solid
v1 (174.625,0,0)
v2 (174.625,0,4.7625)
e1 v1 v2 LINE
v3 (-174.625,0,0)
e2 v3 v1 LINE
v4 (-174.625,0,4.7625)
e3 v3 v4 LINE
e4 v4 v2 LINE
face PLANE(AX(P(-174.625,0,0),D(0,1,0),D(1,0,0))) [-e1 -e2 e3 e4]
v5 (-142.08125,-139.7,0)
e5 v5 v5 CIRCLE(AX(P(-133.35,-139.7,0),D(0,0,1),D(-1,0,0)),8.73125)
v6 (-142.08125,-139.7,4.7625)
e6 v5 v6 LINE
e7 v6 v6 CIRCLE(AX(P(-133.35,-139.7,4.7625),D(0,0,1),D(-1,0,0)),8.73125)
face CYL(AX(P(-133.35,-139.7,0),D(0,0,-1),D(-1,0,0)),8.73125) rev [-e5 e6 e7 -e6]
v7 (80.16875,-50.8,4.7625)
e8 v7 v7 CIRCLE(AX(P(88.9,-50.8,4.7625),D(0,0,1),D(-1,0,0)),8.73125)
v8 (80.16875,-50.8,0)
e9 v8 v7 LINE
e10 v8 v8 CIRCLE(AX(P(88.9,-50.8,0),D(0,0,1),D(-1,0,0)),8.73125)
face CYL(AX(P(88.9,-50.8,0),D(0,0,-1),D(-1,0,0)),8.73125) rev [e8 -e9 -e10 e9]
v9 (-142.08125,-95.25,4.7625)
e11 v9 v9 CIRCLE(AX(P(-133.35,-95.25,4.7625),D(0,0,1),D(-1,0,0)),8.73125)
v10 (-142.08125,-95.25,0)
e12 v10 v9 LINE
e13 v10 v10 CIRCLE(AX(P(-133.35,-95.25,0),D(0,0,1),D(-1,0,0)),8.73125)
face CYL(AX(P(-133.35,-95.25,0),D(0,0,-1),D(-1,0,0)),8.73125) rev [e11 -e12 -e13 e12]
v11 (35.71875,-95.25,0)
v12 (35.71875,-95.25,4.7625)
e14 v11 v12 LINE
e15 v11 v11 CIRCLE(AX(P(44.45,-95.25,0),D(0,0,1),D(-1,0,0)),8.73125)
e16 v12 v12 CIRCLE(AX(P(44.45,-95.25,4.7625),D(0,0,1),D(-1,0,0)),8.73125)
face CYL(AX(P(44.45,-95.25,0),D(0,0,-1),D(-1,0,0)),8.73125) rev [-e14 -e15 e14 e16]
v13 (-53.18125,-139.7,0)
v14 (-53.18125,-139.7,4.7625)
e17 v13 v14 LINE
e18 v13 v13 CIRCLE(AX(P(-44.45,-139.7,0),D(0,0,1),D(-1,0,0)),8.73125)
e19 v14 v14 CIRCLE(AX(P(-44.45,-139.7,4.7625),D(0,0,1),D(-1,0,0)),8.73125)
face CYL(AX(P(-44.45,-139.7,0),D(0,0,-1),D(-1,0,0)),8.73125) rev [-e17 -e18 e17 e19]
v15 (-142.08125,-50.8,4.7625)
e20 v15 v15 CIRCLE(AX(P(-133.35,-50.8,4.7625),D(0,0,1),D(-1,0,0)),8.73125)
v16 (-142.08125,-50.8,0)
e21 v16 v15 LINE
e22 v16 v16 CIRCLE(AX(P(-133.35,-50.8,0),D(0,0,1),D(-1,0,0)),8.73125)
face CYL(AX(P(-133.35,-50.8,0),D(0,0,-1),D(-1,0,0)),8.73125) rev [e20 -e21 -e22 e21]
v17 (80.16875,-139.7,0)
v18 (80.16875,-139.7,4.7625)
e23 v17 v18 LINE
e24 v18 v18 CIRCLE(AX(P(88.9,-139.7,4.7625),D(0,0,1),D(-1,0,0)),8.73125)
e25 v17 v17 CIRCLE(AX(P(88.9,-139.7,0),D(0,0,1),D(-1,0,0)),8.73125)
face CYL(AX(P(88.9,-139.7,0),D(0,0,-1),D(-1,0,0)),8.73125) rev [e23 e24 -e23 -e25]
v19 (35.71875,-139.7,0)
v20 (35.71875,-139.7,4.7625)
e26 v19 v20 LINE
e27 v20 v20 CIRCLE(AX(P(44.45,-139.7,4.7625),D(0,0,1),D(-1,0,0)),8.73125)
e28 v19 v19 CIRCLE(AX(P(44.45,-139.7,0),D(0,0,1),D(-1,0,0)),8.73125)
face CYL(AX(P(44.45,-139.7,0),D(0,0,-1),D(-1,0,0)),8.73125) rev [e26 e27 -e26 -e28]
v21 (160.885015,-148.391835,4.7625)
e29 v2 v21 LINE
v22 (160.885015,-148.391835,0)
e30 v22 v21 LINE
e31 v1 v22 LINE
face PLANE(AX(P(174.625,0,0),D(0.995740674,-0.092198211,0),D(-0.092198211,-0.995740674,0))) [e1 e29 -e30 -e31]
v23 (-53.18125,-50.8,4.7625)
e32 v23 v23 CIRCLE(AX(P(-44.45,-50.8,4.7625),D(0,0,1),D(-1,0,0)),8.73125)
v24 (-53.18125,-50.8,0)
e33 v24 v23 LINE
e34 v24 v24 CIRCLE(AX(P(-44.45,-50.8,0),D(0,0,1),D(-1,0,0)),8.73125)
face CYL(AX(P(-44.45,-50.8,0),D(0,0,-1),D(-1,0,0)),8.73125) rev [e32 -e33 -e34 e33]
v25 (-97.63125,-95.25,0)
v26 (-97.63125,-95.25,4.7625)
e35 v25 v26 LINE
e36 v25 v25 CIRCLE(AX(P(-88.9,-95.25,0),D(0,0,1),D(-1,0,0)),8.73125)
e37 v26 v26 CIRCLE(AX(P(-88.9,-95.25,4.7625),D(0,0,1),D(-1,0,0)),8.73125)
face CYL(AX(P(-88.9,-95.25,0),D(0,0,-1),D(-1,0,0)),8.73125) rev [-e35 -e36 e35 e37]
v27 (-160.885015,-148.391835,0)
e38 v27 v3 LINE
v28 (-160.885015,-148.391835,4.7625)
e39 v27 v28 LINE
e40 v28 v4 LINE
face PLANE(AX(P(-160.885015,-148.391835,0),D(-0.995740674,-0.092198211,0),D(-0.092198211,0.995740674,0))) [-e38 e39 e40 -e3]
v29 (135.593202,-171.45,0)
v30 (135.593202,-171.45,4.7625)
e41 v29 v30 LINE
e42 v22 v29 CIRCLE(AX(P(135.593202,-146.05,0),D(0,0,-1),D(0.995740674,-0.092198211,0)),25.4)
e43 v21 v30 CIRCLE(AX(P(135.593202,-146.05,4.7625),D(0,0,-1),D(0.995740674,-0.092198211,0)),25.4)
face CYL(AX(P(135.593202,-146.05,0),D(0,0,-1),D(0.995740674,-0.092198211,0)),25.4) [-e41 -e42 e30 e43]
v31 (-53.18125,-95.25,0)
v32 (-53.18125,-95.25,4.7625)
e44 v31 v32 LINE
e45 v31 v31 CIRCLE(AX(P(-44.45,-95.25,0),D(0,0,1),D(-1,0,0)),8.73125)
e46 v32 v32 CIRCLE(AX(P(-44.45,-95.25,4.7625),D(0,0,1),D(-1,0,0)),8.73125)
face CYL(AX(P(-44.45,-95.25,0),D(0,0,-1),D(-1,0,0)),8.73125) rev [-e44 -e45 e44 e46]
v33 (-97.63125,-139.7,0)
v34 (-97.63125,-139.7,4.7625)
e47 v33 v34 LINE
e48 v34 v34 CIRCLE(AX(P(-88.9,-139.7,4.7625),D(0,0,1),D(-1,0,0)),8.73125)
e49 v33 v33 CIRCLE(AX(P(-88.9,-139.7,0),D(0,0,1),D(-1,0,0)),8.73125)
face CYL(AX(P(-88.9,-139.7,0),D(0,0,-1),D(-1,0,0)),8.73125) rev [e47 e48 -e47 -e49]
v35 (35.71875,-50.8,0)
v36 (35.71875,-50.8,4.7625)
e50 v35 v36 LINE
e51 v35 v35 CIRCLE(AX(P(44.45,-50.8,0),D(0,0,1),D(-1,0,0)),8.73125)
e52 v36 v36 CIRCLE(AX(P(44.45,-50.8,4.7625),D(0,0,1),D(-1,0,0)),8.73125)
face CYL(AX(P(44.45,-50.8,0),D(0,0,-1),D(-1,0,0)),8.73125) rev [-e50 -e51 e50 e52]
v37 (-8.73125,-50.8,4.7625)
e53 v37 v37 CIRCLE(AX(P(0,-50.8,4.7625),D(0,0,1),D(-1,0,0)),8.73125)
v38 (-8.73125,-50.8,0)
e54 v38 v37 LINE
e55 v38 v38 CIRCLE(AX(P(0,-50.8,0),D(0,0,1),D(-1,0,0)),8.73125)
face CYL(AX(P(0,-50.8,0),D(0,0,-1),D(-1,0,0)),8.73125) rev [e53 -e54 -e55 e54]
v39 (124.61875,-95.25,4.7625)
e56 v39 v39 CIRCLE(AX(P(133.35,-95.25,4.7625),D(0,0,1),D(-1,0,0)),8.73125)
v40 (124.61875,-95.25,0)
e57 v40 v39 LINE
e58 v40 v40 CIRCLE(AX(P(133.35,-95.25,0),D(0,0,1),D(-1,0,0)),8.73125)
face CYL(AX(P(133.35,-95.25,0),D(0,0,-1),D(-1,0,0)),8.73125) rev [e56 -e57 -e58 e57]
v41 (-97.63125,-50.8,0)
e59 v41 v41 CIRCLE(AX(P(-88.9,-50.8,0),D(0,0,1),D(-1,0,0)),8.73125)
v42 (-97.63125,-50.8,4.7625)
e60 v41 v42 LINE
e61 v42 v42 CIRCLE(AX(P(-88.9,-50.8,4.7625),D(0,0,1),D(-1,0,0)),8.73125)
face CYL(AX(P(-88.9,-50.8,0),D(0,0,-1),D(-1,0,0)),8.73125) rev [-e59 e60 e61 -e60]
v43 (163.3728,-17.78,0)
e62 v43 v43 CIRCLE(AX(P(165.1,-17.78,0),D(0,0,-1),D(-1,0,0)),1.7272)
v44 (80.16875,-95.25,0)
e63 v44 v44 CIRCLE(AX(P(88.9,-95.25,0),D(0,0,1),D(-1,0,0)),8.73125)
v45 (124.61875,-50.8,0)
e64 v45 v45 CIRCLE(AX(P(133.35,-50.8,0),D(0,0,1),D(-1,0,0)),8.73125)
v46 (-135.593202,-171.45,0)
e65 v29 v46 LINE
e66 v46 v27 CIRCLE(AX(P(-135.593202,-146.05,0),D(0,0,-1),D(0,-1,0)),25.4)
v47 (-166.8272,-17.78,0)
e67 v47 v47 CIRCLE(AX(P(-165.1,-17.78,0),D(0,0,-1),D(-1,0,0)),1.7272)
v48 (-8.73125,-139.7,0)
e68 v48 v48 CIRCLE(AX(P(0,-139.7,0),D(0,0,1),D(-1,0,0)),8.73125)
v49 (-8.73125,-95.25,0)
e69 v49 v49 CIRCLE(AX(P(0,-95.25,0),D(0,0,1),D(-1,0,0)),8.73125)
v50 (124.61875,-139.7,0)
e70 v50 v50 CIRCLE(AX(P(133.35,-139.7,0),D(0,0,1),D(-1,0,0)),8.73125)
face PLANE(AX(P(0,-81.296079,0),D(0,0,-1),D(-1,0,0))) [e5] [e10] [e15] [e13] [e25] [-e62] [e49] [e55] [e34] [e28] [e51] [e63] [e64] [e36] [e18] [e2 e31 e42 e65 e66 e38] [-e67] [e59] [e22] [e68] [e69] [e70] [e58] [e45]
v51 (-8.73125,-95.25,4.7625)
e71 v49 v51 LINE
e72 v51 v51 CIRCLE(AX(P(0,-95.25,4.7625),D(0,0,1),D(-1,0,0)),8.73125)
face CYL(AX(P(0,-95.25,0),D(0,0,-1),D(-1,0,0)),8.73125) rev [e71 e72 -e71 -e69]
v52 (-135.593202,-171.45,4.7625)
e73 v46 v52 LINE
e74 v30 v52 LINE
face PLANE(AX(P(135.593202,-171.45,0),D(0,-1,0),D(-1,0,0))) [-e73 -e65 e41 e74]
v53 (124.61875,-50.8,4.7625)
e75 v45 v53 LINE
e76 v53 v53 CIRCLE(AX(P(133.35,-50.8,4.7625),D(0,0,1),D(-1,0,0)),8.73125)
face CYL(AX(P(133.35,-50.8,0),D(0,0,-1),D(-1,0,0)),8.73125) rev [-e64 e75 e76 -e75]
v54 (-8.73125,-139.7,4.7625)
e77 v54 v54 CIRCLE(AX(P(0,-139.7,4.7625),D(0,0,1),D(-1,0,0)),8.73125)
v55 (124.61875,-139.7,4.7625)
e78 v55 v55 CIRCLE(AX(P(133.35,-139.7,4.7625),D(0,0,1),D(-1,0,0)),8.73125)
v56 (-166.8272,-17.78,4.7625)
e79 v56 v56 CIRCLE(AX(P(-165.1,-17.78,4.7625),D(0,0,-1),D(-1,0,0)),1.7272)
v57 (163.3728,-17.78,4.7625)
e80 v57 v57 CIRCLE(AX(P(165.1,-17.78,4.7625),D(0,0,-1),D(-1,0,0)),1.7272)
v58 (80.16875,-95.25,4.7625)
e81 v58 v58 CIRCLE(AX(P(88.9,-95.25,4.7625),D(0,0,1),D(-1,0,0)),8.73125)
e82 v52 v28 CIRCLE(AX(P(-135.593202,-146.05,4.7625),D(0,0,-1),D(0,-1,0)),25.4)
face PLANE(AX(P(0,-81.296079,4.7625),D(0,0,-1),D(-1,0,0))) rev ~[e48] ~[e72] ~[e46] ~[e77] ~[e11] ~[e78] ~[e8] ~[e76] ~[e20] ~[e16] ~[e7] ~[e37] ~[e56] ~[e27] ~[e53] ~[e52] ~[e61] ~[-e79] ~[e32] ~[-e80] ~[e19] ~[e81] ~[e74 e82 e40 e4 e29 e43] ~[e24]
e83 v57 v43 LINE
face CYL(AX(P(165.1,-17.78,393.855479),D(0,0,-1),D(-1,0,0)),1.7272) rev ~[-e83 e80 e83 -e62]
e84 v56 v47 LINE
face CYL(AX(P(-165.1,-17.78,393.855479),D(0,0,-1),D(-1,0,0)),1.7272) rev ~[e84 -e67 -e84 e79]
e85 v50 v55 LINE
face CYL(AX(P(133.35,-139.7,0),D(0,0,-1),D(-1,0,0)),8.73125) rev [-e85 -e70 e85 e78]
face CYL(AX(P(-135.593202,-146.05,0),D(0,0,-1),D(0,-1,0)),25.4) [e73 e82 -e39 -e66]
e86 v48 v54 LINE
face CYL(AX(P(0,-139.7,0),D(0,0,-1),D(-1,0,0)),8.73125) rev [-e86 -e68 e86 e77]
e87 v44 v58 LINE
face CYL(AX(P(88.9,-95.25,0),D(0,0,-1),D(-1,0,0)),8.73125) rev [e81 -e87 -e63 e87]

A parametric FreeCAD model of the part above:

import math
import FreeCAD as App
import Part
import Sketcher
from FreeCAD import Vector
Q = App.Units.Quantity

doc = App.newDocument("Part")
body = doc.addObject("PartDesign::Body", "Body")

sketch1 = doc.addObject("Sketcher::SketchObject", "Sketch")
body.addObject(sketch1)
sketch1.AttachmentSupport = (doc.XY_Plane, [""])
sketch1.MapMode = "FlatFace"
sketch1.addGeometry([
    Part.LineSegment(Vector(174.625, 0, 0), Vector(-174.625, 0, 0)),
    Part.LineSegment(Vector(-174.625, 0, 0), Vector(-160.885015, -148.391835, 0)),
    Part.ArcOfCircle(Part.Circle(Vector(-135.593202, -146.05, 0), Vector(0, 0, 1), 25.4), math.radians(-174.709919), math.radians(-90)),
    Part.LineSegment(Vector(-135.593202, -171.45, 0), Vector(135.593202, -171.45, 0)),
    Part.ArcOfCircle(Part.Circle(Vector(135.593202, -146.05, 0), Vector(0, 0, 1), 25.4), math.radians(-90), math.radians(-5.290081)),
    Part.LineSegment(Vector(160.885015, -148.391835, 0), Vector(174.625, 0, 0)),
    Part.Circle(Vector(133.35, -139.7, 0), Vector(0, 0, 1), 8.73125),
    Part.Circle(Vector(88.9, -139.7, 0), Vector(0, 0, 1), 8.73125),
    Part.Circle(Vector(44.45, -139.7, 0), Vector(0, 0, 1), 8.73125),
    Part.Circle(Vector(133.35, -95.25, 0), Vector(0, 0, 1), 8.73125),
    Part.Circle(Vector(88.9, -95.25, 0), Vector(0, 0, 1), 8.73125),
    Part.Circle(Vector(44.45, -95.25, 0), Vector(0, 0, 1), 8.73125),
    Part.Circle(Vector(0, -139.7, 0), Vector(0, 0, 1), 8.73125),
    Part.Circle(Vector(-44.45, -139.7, 0), Vector(0, 0, 1), 8.73125),
    Part.Circle(Vector(-88.9, -139.7, 0), Vector(0, 0, 1), 8.73125),
    Part.Circle(Vector(-133.35, -139.7, 0), Vector(0, 0, 1), 8.73125),
    Part.Circle(Vector(0, -95.25, 0), Vector(0, 0, 1), 8.73125),
    Part.Circle(Vector(-44.45, -95.25, 0), Vector(0, 0, 1), 8.73125),
    Part.Circle(Vector(-88.9, -95.25, 0), Vector(0, 0, 1), 8.73125),
    Part.Circle(Vector(-133.35, -95.25, 0), Vector(0, 0, 1), 8.73125),
    Part.Circle(Vector(133.35, -50.8, 0), Vector(0, 0, 1), 8.73125),
    Part.Circle(Vector(88.9, -50.8, 0), Vector(0, 0, 1), 8.73125),
    Part.Circle(Vector(44.45, -50.8, 0), Vector(0, 0, 1), 8.73125),
    Part.Circle(Vector(0, -50.8, 0), Vector(0, 0, 1), 8.73125),
    Part.Circle(Vector(-44.45, -50.8, 0), Vector(0, 0, 1), 8.73125),
    Part.Circle(Vector(-88.9, -50.8, 0), Vector(0, 0, 1), 8.73125),
    Part.Circle(Vector(-133.35, -50.8, 0), Vector(0, 0, 1), 8.73125),
], False)
sketch1.addConstraint([
    Sketcher.Constraint("Coincident", 0, 2, 1, 1),
    Sketcher.Constraint("Tangent", 1, 2, 2, 1),
    Sketcher.Constraint("Tangent", 2, 2, 3, 1),
    Sketcher.Constraint("Tangent", 3, 2, 4, 1),
    Sketcher.Constraint("Tangent", 4, 2, 5, 1),
    Sketcher.Constraint("Coincident", 5, 2, 0, 1),
    Sketcher.Constraint("Horizontal", 0),
    Sketcher.Constraint("Horizontal", 3),
    Sketcher.Constraint("Equal", 2, 4),
    Sketcher.Constraint("Equal", 6, 7),
    Sketcher.Constraint("Equal", 7, 8),
    Sketcher.Constraint("Equal", 8, 9),
    Sketcher.Constraint("Equal", 9, 10),
    Sketcher.Constraint("Equal", 10, 11),
    Sketcher.Constraint("Equal", 11, 12),
    Sketcher.Constraint("Equal", 12, 13),
    Sketcher.Constraint("Equal", 13, 14),
    Sketcher.Constraint("Equal", 14, 15),
    Sketcher.Constraint("Equal", 15, 16),
    Sketcher.Constraint("Equal", 16, 17),
    Sketcher.Constraint("Equal", 17, 18),
    Sketcher.Constraint("Equal", 18, 19),
    Sketcher.Constraint("Equal", 19, 20),
    Sketcher.Constraint("Equal", 20, 21),
    Sketcher.Constraint("Equal", 21, 22),
    Sketcher.Constraint("Equal", 22, 23),
    Sketcher.Constraint("Equal", 23, 24),
    Sketcher.Constraint("Equal", 24, 25),
    Sketcher.Constraint("Equal", 25, 26),
    Sketcher.Constraint("Symmetric", 0, 2, 5, 2, -1, 1),
    Sketcher.Constraint("Symmetric", 8, 3, 13, 3, -2),
    Sketcher.Constraint("Symmetric", 7, 3, 14, 3, -2),
    Sketcher.Constraint("Symmetric", 6, 3, 15, 3, -2),
    Sketcher.Constraint("Symmetric", 11, 3, 17, 3, -2),
    Sketcher.Constraint("Symmetric", 10, 3, 18, 3, -2),
    Sketcher.Constraint("Symmetric", 9, 3, 19, 3, -2),
    Sketcher.Constraint("Symmetric", 22, 3, 24, 3, -2),
    Sketcher.Constraint("Symmetric", 21, 3, 25, 3, -2),
    Sketcher.Constraint("Symmetric", 20, 3, 26, 3, -2),
    Sketcher.Constraint("PointOnObject", 12, 3, -2),
    Sketcher.Constraint("PointOnObject", 16, 3, -2),
    Sketcher.Constraint("PointOnObject", 23, 3, -2),
    Sketcher.Constraint("Horizontal", 6, 3, 7, 3),
    Sketcher.Constraint("Horizontal", 7, 3, 8, 3),
    Sketcher.Constraint("Horizontal", 9, 3, 10, 3),
    Sketcher.Constraint("Horizontal", 10, 3, 11, 3),
    Sketcher.Constraint("Horizontal", 8, 3, 12, 3),
    Sketcher.Constraint("Horizontal", 11, 3, 16, 3),
    Sketcher.Constraint("Horizontal", 20, 3, 21, 3),
    Sketcher.Constraint("Horizontal", 21, 3, 22, 3),
    Sketcher.Constraint("Horizontal", 22, 3, 23, 3),
    Sketcher.Constraint("Horizontal", 1, 2, 4, 2),
    Sketcher.Constraint("Vertical", 6, 3, 9, 3),
    Sketcher.Constraint("Vertical", 7, 3, 10, 3),
    Sketcher.Constraint("Vertical", 8, 3, 11, 3),
    Sketcher.Constraint("Vertical", 9, 3, 20, 3),
    Sketcher.Constraint("Vertical", 10, 3, 21, 3),
    Sketcher.Constraint("Vertical", 11, 3, 22, 3),
    Sketcher.Constraint("Radius", 2, Q("1 in")),
    Sketcher.Constraint("Diameter", 6, Q("0.6875 in")),
    Sketcher.Constraint("DistanceY", 20, 3, -1, 1, Q("2 in")),
    Sketcher.Constraint("DistanceY", 4, 3, 9, 3, Q("2 in")),
    Sketcher.Constraint("DistanceX", 15, 3, 8, 3, Q("7 in")),
    Sketcher.Constraint("DistanceX", 0, 2, 0, 1, Q("13.75 in")),
    Sketcher.Constraint("DistanceY", 6, 3, -1, 1, Q("5.5 in")),
    Sketcher.Constraint("DistanceX", -1, 1, 7, 3, Q("3.5 in")),
    Sketcher.Constraint("DistanceX", 8, 3, 6, 3, Q("3.5 in")),
    Sketcher.Constraint("DistanceY", 2, 3, -1, 1, Q("5.75 in")),
    Sketcher.Constraint("DistanceX", 3, 1, 3, 2, Q("271.186404 mm")),
])
pad1 = doc.addObject("PartDesign::Pad", "Pad")
body.addObject(pad1)
pad1.Profile = sketch1
pad1.Length = Q("0.1875 in")

sketch2 = doc.addObject("Sketcher::SketchObject", "Sketch001")
body.addObject(sketch2)
sketch2.AttachmentSupport = (doc.XY_Plane, [""])
sketch2.MapMode = "FlatFace"
sketch2.AttachmentOffset = App.Placement(Vector(0, 0, 0.1875 * 25.4), App.Rotation())
sketch2.addGeometry([
    Part.Circle(Vector(165.1, -17.78, 0), Vector(0, 0, 1), 1.7272),
    Part.Circle(Vector(-165.1, -17.78, 0), Vector(0, 0, 1), 1.7272),
], False)
sketch2.addConstraint([
    Sketcher.Constraint("Equal", 0, 1),
    Sketcher.Constraint("Symmetric", 0, 3, 1, 3, -2),
    Sketcher.Constraint("Diameter", 0, Q("0.136 in")),
    Sketcher.Constraint("DistanceX", 1, 3, 0, 3, Q("13 in")),
    Sketcher.Constraint("DistanceY", 0, 3, -1, 1, Q("0.7 in")),
])
doc.recompute()
hole = doc.addObject("PartDesign::Hole", "Hole")
body.addObject(hole)
hole.Profile = sketch2
hole.ThreadType = "None"
hole.Diameter = Q("0.136 in")
hole.DepthType = "ThroughAll"

doc.recompute()
